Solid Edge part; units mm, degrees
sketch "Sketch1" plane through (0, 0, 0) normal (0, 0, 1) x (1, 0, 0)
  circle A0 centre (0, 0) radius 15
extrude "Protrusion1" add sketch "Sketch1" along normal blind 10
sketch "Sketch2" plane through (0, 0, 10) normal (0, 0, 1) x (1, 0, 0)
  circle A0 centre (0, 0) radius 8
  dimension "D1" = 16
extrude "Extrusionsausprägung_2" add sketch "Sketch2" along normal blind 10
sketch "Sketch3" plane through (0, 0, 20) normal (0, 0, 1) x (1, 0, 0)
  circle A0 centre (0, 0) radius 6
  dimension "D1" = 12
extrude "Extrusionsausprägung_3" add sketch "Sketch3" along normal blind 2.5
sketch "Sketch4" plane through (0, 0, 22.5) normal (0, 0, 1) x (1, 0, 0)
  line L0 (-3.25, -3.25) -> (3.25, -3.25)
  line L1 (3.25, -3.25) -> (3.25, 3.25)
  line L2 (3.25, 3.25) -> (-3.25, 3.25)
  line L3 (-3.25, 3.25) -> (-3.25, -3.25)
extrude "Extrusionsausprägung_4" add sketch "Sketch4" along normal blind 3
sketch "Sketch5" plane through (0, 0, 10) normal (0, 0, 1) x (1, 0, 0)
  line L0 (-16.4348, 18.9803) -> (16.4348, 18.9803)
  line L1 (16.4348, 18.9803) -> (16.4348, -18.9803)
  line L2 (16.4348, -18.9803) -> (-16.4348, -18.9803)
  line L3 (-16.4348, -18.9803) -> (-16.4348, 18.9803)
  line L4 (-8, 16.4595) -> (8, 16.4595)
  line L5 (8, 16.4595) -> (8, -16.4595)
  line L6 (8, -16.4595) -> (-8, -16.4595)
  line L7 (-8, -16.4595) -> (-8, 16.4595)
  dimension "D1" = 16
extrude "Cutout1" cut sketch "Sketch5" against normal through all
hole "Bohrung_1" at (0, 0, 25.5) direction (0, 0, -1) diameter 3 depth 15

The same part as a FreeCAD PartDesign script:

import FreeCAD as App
import Part
import Sketcher
from FreeCAD import Vector

doc = App.newDocument("Part")
params = doc.addObject("Spreadsheet::Sheet", "Params")
for row, (alias, value) in enumerate([
    ("sketch1_diameter", "30 mm"),
    ("pad1_length", "10 mm"),
    ("sketch2_diameter", "16 mm"),
    ("pad2_length", "10 mm"),
    ("sketch3_diameter", "12 mm"),
    ("pad3_length", "2.5 mm"),
    ("sketch4_width", "6.5 mm"),
    ("pad4_length", "3 mm"),
    ("sketch6_diameter", "3 mm"),
    ("hole_diameter", "3 mm"),
    ("hole_depth", "15 mm"),
], start=1):
    params.set(f"A{row}", alias)
    params.set(f"B{row}", "=" + value)
    params.setAlias(f"B{row}", alias)

body = doc.addObject("PartDesign::Body", "Body")

# Sketch on XY plane
sketch1 = body.newObject("Sketcher::SketchObject", "Sketch")
sketch1.AttachmentSupport = (doc.getObject("XY_Plane"), [""])
sketch1.MapMode = "FlatFace"
sketch1.addGeometry(Part.Circle(Vector(0, 0, 0), Vector(0, 0, 1), 15), False)
sketch1.addConstraint(Sketcher.Constraint("Coincident", 0, 3, -1, 1))
sketch1.addConstraint(Sketcher.Constraint("Diameter", 0, 30.0))
sketch1.setExpression("Constraints[1]", "Params.sketch1_diameter")
pad1 = body.newObject("PartDesign::Pad", "Pad")
pad1.Profile = sketch1
pad1.setExpression("Length", "Params.pad1_length")

# Sketch on XY plane
sketch2 = body.newObject("Sketcher::SketchObject", "Sketch001")
sketch2.AttachmentSupport = (doc.getObject("XY_Plane"), [""])
sketch2.MapMode = "FlatFace"
sketch2.AttachmentOffset = App.Placement(Vector(0, 0, 10), App.Rotation())
sketch2.addGeometry(Part.Circle(Vector(0, 0, 0), Vector(0, 0, 1), 8), False)
sketch2.addConstraint(Sketcher.Constraint("Coincident", 0, 3, -1, 1))
sketch2.addConstraint(Sketcher.Constraint("Diameter", 0, 16.0))
sketch2.setExpression("Constraints[1]", "Params.sketch2_diameter")
pad2 = body.newObject("PartDesign::Pad", "Pad001")
pad2.Profile = sketch2
pad2.setExpression("Length", "Params.pad2_length")

# Sketch on XY plane
sketch3 = body.newObject("Sketcher::SketchObject", "Sketch002")
sketch3.AttachmentSupport = (doc.getObject("XY_Plane"), [""])
sketch3.MapMode = "FlatFace"
sketch3.AttachmentOffset = App.Placement(Vector(0, 0, 20), App.Rotation())
sketch3.addGeometry(Part.Circle(Vector(0, 0, 0), Vector(0, 0, 1), 6), False)
sketch3.addConstraint(Sketcher.Constraint("Coincident", 0, 3, -1, 1))
sketch3.addConstraint(Sketcher.Constraint("Diameter", 0, 12.0))
sketch3.setExpression("Constraints[1]", "Params.sketch3_diameter")
pad3 = body.newObject("PartDesign::Pad", "Pad002")
pad3.Profile = sketch3
pad3.setExpression("Length", "Params.pad3_length")

# Sketch on XY plane
sketch4 = body.newObject("Sketcher::SketchObject", "Sketch003")
sketch4.AttachmentSupport = (doc.getObject("XY_Plane"), [""])
sketch4.MapMode = "FlatFace"
sketch4.AttachmentOffset = App.Placement(Vector(0, 0, 22.5), App.Rotation())
sketch4.addGeometry(Part.LineSegment(Vector(-3, 3, 0), Vector(-3, -3, 0)), False)
sketch4.addGeometry(Part.LineSegment(Vector(-3, -3, 0), Vector(3, -3, 0)), False)
sketch4.addGeometry(Part.LineSegment(Vector(3, -3, 0), Vector(3, 3, 0)), False)
sketch4.addGeometry(Part.LineSegment(Vector(3, 3, 0), Vector(-3, 3, 0)), False)
sketch4.addConstraint(Sketcher.Constraint("Coincident", 0, 2, 1, 1))
sketch4.addConstraint(Sketcher.Constraint("Coincident", 1, 2, 2, 1))
sketch4.addConstraint(Sketcher.Constraint("Coincident", 2, 2, 3, 1))
sketch4.addConstraint(Sketcher.Constraint("Coincident", 3, 2, 0, 1))
sketch4.addConstraint(Sketcher.Constraint("Vertical", 0))
sketch4.addConstraint(Sketcher.Constraint("Horizontal", 1))
sketch4.addConstraint(Sketcher.Constraint("Vertical", 2))
sketch4.addConstraint(Sketcher.Constraint("Horizontal", 3))
sketch4.addConstraint(Sketcher.Constraint("Symmetric", 0, 2, 2, 2, -1, 1))
sketch4.addConstraint(Sketcher.Constraint("Equal", 3, 0))
sketch4.addConstraint(Sketcher.Constraint("DistanceX", 1, 1, 1, 2, 6.5))
sketch4.setExpression("Constraints[10]", "Params.sketch4_width")
pad4 = body.newObject("PartDesign::Pad", "Pad003")
pad4.Profile = sketch4
pad4.setExpression("Length", "Params.pad4_length")

# Sketch on XY plane
sketch5 = body.newObject("Sketcher::SketchObject", "Sketch004")
sketch5.AttachmentSupport = (doc.getObject("XY_Plane"), [""])
sketch5.MapMode = "FlatFace"
sketch5.AttachmentOffset = App.Placement(Vector(0, 0, 10), App.Rotation())
sketch5.addGeometry(Part.LineSegment(Vector(16, 19, 0), Vector(-16, 19, 0)), False)
sketch5.addGeometry(Part.LineSegment(Vector(-16, 19, 0), Vector(-16, -19, 0)), False)
sketch5.addGeometry(Part.LineSegment(Vector(-16, -19, 0), Vector(16, -19, 0)), False)
sketch5.addGeometry(Part.LineSegment(Vector(16, -19, 0), Vector(16, 19, 0)), False)
sketch5.addGeometry(Part.LineSegment(Vector(-8, -16, 0), Vector(-8, 16, 0)), False)
sketch5.addGeometry(Part.LineSegment(Vector(-8, 16, 0), Vector(8, 16, 0)), False)
sketch5.addGeometry(Part.LineSegment(Vector(8, 16, 0), Vector(8, -16, 0)), False)
sketch5.addGeometry(Part.LineSegment(Vector(8, -16, 0), Vector(-8, -16, 0)), False)
sketch5.addConstraint(Sketcher.Constraint("Coincident", 0, 2, 1, 1))
sketch5.addConstraint(Sketcher.Constraint("Coincident", 1, 2, 2, 1))
sketch5.addConstraint(Sketcher.Constraint("Coincident", 2, 2, 3, 1))
sketch5.addConstraint(Sketcher.Constraint("Coincident", 3, 2, 0, 1))
sketch5.addConstraint(Sketcher.Constraint("Coincident", 4, 2, 5, 1))
sketch5.addConstraint(Sketcher.Constraint("Coincident", 5, 2, 6, 1))
sketch5.addConstraint(Sketcher.Constraint("Coincident", 6, 2, 7, 1))
sketch5.addConstraint(Sketcher.Constraint("Coincident", 7, 2, 4, 1))
sketch5.addConstraint(Sketcher.Constraint("Horizontal", 0))
sketch5.addConstraint(Sketcher.Constraint("Vertical", 1))
sketch5.addConstraint(Sketcher.Constraint("Horizontal", 2))
sketch5.addConstraint(Sketcher.Constraint("Vertical", 3))
sketch5.addConstraint(Sketcher.Constraint("Vertical", 4))
sketch5.addConstraint(Sketcher.Constraint("Horizontal", 5))
sketch5.addConstraint(Sketcher.Constraint("Vertical", 6))
sketch5.addConstraint(Sketcher.Constraint("Horizontal", 7))
sketch5.addConstraint(Sketcher.Constraint("Symmetric", 0, 2, 2, 2, -1, 1))
sketch5.addConstraint(Sketcher.Constraint("Symmetric", 4, 2, 6, 2, -1, 1))
sketch5.addConstraint(Sketcher.Constraint("DistanceX", 4, 2, -1, 1, 8.0))
sketch5.addConstraint(Sketcher.Constraint("DistanceY", 4, 1, 4, 2, 32.919))
sketch5.addConstraint(Sketcher.Constraint("DistanceX", 0, 2, 0, 1, 32.8696))
sketch5.addConstraint(Sketcher.Constraint("DistanceY", 1, 2, 1, 1, 37.9606))
pocket1 = body.newObject("PartDesign::Pocket", "Pocket")
pocket1.Profile = sketch5
pocket1.Type = "ThroughAll"

# Sketch on XY plane
sketch6 = body.newObject("Sketcher::SketchObject", "Sketch005")
sketch6.AttachmentSupport = (doc.getObject("XY_Plane"), [""])
sketch6.MapMode = "FlatFace"
sketch6.AttachmentOffset = App.Placement(Vector(0, 0, 25.5), App.Rotation())
sketch6.addGeometry(Part.Circle(Vector(0, 0, 0), Vector(0, 0, 1), 1.5), False)
sketch6.addConstraint(Sketcher.Constraint("Coincident", 0, 3, -1, 1))
sketch6.addConstraint(Sketcher.Constraint("Diameter", 0, 3.0))
sketch6.setExpression("Constraints[1]", "Params.sketch6_diameter")
doc.recompute()
hole = body.newObject("PartDesign::Hole", "Hole")
hole.Profile = sketch6
hole.ThreadType = "None"
hole.setExpression("Diameter", "Params.hole_diameter")
hole.DepthType = "Dimension"
hole.setExpression("Depth", "Params.hole_depth")
hole.DrillPoint = "Flat"

doc.recompute()
